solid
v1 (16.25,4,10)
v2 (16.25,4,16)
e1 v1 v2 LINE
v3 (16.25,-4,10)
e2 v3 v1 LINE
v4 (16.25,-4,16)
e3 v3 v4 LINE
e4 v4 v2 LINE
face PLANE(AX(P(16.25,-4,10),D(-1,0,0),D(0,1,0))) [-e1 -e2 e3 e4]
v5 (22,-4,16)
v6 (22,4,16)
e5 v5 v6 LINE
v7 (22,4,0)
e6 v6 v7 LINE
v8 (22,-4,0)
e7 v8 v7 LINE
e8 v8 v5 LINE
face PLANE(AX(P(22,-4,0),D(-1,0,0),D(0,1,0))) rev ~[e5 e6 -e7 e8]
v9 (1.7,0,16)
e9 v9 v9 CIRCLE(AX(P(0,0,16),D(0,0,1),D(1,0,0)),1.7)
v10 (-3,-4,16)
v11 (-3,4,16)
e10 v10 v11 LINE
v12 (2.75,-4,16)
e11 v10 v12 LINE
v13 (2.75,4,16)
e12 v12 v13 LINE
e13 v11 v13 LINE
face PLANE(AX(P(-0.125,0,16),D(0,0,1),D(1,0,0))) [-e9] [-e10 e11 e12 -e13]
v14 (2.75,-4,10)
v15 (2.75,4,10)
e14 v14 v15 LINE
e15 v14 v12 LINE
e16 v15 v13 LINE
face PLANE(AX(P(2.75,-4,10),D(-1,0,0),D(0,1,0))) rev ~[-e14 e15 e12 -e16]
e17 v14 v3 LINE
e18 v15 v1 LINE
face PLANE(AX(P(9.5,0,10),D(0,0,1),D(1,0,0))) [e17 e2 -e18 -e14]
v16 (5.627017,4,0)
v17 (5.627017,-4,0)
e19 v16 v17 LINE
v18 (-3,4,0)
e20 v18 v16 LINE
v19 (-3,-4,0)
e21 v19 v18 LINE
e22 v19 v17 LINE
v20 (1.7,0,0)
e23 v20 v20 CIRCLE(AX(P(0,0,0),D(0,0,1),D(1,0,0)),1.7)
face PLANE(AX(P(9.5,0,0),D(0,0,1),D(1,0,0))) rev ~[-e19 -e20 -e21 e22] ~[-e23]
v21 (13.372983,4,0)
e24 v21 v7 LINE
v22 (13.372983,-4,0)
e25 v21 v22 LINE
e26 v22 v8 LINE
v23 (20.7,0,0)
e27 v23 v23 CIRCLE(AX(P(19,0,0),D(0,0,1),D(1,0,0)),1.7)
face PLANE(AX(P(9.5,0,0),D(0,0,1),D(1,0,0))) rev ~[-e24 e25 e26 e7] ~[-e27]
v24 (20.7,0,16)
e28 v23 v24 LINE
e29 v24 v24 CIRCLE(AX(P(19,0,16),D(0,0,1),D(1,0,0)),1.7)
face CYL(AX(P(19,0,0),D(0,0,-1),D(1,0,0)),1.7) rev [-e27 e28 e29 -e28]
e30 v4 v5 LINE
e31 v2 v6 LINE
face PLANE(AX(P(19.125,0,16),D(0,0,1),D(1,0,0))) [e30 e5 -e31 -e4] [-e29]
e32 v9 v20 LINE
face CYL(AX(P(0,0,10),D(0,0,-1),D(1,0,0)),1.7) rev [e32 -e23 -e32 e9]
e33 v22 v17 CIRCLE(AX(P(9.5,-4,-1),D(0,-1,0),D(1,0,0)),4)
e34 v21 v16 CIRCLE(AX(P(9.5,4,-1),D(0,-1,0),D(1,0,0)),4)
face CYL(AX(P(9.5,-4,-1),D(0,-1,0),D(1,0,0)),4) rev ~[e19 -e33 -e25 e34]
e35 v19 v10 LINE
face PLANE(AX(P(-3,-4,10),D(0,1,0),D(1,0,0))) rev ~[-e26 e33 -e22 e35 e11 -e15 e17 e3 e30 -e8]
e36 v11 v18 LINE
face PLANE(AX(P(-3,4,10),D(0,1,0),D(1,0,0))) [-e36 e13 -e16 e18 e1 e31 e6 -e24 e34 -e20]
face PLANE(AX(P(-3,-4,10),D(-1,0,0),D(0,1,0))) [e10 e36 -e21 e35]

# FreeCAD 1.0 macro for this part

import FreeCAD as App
import Part
import Sketcher


def add_polygon(sketch, points):
    """Adds a closed chain of lines whose ends are joined by coincident constraints."""
    first, n = sketch.GeometryCount, len(points)
    for a, b in zip(points, points[1:] + points[:1]):
        sketch.addGeometry(Part.LineSegment(App.Vector(*a, 0), App.Vector(*b, 0)), False)
    for i in range(n):
        sketch.addConstraint(Sketcher.Constraint("Coincident", first + i, 2, first + (i + 1) % n, 1))

doc = App.newDocument("Part")
body = doc.addObject("PartDesign::Body", "Body")

# Sketch on XY plane
sketch1 = body.newObject("Sketcher::SketchObject", "Sketch")
sketch1.AttachmentSupport = (doc.getObject("XY_Plane"), [""])
sketch1.MapMode = "FlatFace"
add_polygon(sketch1, [(-3, 4), (-3, -4), (22, -4), (22, 4)])  # lines 0-3
sketch1.addGeometry(Part.Circle(App.Vector(0, 0, 0), App.Vector(0, 0, 1), 1.7), False)  # 4
sketch1.addGeometry(Part.Circle(App.Vector(19, 0, 0), App.Vector(0, 0, 1), 1.7), False)  # 5
sketch1.addConstraint([
    Sketcher.Constraint("Vertical", 0),
    Sketcher.Constraint("Horizontal", 1),
    Sketcher.Constraint("Vertical", 2),
    Sketcher.Constraint("Horizontal", 3),
    Sketcher.Constraint("Coincident", 4, 3, -1, 1),
    Sketcher.Constraint("Equal", 4, 5),
    Sketcher.Constraint("PointOnObject", 5, 3, -1),
    Sketcher.Constraint("Diameter", 4, 3.4),
    Sketcher.Constraint("DistanceX", 1, 1, 1, 2, 25.0),
    Sketcher.Constraint("DistanceY", 0, 2, 0, 1, 8.0),
    Sketcher.Constraint("DistanceX", -1, 1, 5, 3, 19.0),
    Sketcher.Constraint("DistanceX", 0, 2, -1, 1, 3.0),
    Sketcher.Constraint("DistanceY", 0, 2, -1, 1, 4.0),
])
pad1 = body.newObject("PartDesign::Pad", "Pad")
pad1.Profile = sketch1
pad1.Length = 10

# Sketch on XZ plane
sketch2 = body.newObject("Sketcher::SketchObject", "Sketch001")
sketch2.AttachmentSupport = (doc.getObject("XZ_Plane"), [""])
sketch2.MapMode = "FlatFace"
sketch2.AttachmentOffset = App.Placement(App.Vector(0, 0, 4), App.Rotation())
sketch2.addGeometry(Part.Circle(App.Vector(9.5, -1, 0), App.Vector(0, 0, 1), 4), False)
sketch2.addConstraint([
    Sketcher.Constraint("Diameter", 0, 8.0),
    Sketcher.Constraint("DistanceY", 0, 3, -1, 1, 1.0),
    Sketcher.Constraint("DistanceX", -1, 1, 0, 3, 9.5),
])
pocket1 = body.newObject("PartDesign::Pocket", "Pocket")
pocket1.Profile = sketch2
pocket1.Type = "ThroughAll"

# Sketch on XY plane
sketch3 = body.newObject("Sketcher::SketchObject", "Sketch002")
sketch3.AttachmentSupport = (doc.getObject("XY_Plane"), [""])
sketch3.MapMode = "FlatFace"
sketch3.AttachmentOffset = App.Placement(App.Vector(0, 0, 10), App.Rotation())
add_polygon(sketch3, [(-3, 4), (-3, -4), (2.75, -4), (2.75, 4)])  # lines 0-3
sketch3.addGeometry(Part.Circle(App.Vector(0, 0, 0), App.Vector(0, 0, 1), 1.7), False)  # 4
add_polygon(sketch3, [(16.25, 4), (16.25, -4), (22, -4), (22, 4)])  # lines 5-8
sketch3.addGeometry(Part.Circle(App.Vector(19, 0, 0), App.Vector(0, 0, 1), 1.7), False)  # 9
sketch3.addConstraint([
    Sketcher.Constraint("Vertical", 0),
    Sketcher.Constraint("Horizontal", 1),
    Sketcher.Constraint("Vertical", 2),
    Sketcher.Constraint("Horizontal", 3),
    Sketcher.Constraint("Vertical", 5),
    Sketcher.Constraint("Horizontal", 6),
    Sketcher.Constraint("Vertical", 7),
    Sketcher.Constraint("Horizontal", 8),
    Sketcher.Constraint("Coincident", 4, 3, -1, 1),
    Sketcher.Constraint("Equal", 4, 9),
    Sketcher.Constraint("PointOnObject", 9, 3, -1),
    Sketcher.Constraint("Horizontal", 1, 2, 5, 2),
    Sketcher.Constraint("Horizontal", 3, 2, 7, 2),
    Sketcher.Constraint("Equal", 3, 6),
    Sketcher.Constraint("Diameter", 4, 3.4),
    Sketcher.Constraint("DistanceY", 0, 2, 0, 1, 8.0),
    Sketcher.Constraint("DistanceX", -1, 1, 9, 3, 19.0),
    Sketcher.Constraint("DistanceX", 0, 2, -1, 1, 3.0),
    Sketcher.Constraint("DistanceY", 0, 2, -1, 1, 4.0),
    Sketcher.Constraint("DistanceX", -1, 1, 6, 2, 22.0),
    Sketcher.Constraint("DistanceX", 1, 1, 1, 2, 5.75),
])
pad2 = body.newObject("PartDesign::Pad", "Pad001")
pad2.Profile = sketch3
pad2.Length = 6

doc.recompute()
